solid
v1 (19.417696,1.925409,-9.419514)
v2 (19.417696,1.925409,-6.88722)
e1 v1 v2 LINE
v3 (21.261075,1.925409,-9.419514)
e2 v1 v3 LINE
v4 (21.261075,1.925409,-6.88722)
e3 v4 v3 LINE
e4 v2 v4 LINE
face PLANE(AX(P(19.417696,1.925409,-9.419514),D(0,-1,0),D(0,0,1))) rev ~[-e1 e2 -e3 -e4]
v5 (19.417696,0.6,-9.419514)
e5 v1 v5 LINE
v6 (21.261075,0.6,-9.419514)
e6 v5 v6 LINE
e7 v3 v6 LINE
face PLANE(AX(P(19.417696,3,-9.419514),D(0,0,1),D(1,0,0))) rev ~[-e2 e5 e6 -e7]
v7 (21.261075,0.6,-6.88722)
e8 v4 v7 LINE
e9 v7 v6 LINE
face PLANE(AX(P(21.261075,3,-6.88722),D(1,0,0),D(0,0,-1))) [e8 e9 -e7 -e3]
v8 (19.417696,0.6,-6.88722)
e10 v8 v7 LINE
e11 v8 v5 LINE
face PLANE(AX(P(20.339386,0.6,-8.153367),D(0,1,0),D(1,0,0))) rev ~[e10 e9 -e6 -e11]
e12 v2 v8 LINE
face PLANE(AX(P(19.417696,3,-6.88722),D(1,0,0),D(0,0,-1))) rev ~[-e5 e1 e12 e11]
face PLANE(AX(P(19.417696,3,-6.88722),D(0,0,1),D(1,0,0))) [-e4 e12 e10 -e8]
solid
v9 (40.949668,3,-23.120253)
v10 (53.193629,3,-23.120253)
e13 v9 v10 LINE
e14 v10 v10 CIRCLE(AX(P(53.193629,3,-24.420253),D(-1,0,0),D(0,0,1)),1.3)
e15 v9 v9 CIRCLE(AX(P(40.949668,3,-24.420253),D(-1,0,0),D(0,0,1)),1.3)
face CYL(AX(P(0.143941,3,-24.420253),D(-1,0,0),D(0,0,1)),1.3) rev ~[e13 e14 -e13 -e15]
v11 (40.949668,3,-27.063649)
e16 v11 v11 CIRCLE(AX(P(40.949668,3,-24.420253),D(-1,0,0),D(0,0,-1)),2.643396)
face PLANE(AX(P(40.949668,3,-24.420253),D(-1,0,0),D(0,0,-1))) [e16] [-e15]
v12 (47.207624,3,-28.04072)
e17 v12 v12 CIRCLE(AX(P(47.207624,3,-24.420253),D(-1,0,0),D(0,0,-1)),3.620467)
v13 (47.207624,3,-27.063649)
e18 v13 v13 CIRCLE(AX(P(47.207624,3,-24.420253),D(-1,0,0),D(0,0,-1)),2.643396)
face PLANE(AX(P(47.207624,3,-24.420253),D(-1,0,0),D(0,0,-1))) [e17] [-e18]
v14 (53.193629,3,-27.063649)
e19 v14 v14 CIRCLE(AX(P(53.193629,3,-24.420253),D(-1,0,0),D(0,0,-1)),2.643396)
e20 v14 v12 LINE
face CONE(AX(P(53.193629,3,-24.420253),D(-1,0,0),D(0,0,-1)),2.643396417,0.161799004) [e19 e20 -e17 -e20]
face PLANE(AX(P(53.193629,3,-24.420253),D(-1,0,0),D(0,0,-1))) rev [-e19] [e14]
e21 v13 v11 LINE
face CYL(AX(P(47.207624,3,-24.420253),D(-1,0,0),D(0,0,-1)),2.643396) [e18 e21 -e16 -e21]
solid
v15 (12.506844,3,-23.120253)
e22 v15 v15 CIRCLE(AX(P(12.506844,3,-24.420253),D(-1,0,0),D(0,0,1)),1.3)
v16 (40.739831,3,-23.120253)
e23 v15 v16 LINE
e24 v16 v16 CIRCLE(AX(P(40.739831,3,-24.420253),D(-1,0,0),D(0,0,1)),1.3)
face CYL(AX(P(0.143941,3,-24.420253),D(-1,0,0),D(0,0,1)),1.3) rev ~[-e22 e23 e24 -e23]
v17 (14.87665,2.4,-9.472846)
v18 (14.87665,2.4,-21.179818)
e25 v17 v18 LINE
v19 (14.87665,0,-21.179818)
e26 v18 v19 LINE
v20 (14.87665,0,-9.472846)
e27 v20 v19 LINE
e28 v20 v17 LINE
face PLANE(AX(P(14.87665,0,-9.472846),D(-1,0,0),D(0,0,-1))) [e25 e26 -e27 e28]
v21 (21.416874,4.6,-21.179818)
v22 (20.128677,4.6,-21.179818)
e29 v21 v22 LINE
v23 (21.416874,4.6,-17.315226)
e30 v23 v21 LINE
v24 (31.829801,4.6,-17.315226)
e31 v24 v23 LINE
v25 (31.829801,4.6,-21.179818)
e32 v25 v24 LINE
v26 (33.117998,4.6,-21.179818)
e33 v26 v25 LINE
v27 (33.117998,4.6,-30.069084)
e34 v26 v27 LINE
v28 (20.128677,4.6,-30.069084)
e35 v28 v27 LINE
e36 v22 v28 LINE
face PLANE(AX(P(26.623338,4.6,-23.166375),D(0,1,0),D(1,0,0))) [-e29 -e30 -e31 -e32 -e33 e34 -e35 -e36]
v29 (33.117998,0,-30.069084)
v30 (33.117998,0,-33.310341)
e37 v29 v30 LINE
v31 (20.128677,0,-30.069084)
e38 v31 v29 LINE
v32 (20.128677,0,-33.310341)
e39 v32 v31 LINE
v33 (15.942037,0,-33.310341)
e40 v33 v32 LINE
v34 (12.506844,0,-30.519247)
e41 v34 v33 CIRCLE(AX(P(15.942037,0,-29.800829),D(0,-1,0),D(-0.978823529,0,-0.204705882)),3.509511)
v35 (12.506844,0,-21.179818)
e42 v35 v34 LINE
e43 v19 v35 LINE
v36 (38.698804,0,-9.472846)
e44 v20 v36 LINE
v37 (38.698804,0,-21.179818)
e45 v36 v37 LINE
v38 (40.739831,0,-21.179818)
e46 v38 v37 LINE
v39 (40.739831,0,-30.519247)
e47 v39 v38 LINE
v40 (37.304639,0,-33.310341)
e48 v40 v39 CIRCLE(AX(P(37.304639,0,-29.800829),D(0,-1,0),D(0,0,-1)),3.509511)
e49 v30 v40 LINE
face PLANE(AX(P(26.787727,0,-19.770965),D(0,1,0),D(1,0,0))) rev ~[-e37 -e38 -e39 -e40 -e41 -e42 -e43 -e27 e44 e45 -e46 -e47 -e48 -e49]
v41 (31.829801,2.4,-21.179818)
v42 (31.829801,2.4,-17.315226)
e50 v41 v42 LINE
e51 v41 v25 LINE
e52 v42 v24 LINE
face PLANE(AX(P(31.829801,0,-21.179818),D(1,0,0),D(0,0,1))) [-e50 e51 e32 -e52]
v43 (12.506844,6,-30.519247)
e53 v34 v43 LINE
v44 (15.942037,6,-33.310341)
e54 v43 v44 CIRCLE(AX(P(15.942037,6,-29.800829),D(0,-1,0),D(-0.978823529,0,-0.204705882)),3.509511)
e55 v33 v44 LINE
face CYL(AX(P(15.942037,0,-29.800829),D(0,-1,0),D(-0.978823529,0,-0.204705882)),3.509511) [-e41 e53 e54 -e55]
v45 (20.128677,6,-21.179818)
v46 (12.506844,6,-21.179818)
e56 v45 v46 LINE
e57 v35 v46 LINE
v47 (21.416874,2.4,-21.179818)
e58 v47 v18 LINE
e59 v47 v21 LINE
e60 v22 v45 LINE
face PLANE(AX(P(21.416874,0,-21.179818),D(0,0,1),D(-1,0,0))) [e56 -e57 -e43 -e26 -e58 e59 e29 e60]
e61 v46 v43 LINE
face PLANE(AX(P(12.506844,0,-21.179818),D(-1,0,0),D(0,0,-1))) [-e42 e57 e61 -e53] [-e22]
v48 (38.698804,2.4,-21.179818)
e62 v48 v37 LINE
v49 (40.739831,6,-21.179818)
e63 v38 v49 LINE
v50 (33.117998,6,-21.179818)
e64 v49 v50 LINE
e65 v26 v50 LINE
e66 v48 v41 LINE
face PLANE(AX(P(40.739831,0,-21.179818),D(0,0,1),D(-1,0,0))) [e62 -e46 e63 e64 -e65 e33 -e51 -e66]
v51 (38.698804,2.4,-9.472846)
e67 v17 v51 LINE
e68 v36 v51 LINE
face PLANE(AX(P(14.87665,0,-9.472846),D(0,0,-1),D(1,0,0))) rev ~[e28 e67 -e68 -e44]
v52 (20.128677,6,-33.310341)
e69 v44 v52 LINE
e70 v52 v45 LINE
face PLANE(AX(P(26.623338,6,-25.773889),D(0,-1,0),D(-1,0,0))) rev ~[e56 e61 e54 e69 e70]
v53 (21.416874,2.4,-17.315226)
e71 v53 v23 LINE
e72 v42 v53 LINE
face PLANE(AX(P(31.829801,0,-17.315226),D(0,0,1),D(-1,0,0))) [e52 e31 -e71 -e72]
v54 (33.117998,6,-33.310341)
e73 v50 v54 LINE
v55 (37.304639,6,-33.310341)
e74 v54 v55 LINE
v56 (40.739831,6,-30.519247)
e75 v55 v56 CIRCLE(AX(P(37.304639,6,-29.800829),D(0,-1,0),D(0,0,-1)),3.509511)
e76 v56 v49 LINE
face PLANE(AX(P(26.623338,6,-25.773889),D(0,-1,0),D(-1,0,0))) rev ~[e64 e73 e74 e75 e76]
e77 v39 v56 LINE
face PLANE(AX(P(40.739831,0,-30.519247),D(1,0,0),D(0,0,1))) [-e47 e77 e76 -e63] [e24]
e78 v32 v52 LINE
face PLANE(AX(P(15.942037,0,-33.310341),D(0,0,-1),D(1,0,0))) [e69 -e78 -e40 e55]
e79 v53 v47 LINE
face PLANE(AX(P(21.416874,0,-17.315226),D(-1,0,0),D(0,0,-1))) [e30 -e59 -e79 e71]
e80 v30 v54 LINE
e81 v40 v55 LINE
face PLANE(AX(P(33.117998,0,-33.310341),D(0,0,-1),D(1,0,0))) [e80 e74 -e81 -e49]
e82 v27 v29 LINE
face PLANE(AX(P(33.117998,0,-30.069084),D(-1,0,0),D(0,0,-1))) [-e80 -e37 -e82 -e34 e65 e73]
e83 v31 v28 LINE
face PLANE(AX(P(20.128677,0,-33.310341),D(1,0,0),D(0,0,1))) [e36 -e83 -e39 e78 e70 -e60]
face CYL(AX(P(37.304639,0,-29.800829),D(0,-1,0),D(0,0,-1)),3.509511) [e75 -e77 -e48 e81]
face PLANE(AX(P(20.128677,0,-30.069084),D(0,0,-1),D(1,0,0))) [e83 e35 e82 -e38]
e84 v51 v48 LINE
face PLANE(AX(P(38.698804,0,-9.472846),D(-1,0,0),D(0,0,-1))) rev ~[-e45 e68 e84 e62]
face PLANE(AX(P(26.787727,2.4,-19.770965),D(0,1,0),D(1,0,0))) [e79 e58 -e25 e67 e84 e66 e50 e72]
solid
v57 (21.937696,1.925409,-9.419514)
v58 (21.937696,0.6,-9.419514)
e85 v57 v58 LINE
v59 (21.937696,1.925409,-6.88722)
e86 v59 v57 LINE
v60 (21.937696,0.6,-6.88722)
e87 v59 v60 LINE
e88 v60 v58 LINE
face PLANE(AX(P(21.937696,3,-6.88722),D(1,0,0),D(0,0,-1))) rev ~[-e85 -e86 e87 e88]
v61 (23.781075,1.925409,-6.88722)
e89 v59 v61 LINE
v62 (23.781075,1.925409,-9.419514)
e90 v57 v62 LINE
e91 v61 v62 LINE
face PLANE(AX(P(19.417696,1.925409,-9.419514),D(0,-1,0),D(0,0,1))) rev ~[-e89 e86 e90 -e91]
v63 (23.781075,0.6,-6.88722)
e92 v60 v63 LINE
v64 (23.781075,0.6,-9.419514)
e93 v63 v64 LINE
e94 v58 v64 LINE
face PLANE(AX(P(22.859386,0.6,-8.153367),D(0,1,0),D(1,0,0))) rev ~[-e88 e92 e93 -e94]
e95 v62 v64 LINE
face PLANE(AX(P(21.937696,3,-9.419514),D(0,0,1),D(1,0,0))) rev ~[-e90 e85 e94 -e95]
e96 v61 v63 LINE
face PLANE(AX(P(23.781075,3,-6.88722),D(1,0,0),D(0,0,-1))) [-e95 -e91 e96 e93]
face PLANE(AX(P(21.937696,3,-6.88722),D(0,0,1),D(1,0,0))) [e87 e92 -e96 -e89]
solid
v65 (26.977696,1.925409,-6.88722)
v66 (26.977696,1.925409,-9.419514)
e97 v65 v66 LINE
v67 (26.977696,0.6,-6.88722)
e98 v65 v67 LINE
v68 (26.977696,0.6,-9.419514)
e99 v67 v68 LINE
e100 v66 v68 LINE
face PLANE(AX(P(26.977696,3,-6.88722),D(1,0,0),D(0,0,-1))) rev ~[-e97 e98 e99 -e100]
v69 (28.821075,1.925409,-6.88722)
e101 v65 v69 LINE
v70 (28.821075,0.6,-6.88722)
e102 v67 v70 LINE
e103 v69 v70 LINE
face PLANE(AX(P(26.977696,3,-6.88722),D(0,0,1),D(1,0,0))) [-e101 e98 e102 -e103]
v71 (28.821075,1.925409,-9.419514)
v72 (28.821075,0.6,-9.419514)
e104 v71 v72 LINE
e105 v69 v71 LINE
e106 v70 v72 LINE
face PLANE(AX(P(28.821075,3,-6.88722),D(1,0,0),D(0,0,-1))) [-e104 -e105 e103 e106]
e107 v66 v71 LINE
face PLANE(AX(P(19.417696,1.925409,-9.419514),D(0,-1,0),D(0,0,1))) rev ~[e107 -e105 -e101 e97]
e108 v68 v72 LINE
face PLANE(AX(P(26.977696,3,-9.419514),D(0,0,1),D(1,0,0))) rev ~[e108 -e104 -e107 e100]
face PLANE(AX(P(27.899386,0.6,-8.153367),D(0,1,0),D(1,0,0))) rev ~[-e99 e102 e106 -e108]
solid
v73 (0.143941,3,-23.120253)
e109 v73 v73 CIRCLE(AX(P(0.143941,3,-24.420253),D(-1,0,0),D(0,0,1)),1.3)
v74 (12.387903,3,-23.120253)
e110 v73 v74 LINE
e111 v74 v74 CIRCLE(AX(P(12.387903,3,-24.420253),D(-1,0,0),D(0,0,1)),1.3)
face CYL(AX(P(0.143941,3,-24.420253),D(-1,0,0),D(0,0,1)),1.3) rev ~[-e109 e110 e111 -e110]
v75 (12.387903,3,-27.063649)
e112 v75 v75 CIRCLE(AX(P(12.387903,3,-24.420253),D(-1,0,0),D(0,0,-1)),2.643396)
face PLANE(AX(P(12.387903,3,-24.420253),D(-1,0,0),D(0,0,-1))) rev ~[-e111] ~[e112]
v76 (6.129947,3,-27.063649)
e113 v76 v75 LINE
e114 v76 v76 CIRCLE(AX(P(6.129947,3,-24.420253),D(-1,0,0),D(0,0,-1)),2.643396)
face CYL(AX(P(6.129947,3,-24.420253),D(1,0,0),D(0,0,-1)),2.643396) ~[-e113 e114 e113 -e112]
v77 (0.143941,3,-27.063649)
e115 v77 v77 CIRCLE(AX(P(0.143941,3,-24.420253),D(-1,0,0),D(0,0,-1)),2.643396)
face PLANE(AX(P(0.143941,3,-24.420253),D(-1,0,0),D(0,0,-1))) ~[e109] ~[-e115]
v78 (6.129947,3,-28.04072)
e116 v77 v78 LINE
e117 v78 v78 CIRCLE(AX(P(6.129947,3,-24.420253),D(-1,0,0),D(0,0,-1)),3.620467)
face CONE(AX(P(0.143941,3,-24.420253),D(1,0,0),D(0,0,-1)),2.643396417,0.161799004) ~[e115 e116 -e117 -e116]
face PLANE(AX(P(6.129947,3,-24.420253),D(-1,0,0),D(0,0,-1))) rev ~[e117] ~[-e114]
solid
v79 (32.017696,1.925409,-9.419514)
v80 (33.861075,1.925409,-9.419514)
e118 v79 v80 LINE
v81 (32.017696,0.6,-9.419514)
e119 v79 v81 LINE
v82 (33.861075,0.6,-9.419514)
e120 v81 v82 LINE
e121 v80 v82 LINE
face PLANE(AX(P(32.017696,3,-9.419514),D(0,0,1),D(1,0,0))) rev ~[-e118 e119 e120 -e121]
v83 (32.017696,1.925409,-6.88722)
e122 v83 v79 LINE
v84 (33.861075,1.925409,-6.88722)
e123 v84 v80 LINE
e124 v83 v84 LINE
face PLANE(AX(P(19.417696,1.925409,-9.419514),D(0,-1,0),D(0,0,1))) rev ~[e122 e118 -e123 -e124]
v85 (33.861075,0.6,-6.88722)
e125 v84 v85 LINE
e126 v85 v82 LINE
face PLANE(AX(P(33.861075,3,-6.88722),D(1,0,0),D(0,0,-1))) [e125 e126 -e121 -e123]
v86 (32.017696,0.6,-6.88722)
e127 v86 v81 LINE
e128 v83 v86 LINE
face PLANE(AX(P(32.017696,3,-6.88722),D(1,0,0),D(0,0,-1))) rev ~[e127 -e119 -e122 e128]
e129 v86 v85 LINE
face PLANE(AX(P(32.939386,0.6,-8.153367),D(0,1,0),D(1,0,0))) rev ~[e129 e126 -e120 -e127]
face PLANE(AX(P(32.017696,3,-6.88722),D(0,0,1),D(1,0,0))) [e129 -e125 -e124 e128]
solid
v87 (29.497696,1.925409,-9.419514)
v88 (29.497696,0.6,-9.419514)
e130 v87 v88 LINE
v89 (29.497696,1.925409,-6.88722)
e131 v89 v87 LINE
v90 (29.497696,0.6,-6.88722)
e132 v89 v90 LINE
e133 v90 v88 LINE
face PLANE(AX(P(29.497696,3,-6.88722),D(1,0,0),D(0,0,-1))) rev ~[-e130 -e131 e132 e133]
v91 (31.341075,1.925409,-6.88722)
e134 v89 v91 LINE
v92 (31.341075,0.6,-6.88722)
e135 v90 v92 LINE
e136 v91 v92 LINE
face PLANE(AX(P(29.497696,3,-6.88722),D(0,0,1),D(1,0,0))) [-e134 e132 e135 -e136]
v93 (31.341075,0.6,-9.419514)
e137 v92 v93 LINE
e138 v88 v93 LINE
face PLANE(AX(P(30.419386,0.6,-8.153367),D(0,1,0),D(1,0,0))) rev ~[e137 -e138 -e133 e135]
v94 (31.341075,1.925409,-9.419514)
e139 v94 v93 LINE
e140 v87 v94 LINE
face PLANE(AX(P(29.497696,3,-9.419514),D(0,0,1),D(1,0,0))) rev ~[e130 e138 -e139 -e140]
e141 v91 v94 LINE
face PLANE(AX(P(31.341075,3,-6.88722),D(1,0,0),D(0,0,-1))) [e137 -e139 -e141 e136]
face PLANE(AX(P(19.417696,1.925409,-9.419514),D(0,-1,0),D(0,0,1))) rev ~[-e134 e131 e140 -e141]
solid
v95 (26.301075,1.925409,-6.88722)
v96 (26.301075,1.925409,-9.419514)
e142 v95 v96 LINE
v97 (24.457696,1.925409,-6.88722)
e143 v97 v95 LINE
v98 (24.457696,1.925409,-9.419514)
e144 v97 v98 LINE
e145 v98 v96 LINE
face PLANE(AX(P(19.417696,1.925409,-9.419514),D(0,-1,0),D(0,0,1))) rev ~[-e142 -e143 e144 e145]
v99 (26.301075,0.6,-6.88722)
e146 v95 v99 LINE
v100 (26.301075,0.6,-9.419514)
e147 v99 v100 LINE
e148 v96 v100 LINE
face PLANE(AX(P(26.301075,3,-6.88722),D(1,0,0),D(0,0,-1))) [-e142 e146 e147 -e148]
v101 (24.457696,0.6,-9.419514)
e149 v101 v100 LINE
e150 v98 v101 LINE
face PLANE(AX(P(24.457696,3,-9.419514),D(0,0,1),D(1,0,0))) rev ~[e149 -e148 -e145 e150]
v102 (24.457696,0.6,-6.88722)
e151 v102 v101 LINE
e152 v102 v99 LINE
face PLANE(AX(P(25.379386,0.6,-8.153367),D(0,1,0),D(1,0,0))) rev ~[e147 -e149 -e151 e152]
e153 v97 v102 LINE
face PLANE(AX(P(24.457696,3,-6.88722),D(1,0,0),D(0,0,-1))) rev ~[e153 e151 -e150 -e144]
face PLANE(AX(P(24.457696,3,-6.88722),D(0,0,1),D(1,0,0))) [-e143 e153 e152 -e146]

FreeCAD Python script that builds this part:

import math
import FreeCAD as App
import Part
import Sketcher

V = App.Vector
Q = App.Units.Quantity

doc = App.newDocument("Part")
body = doc.addObject("PartDesign::Body", "Body")

sketch1 = doc.addObject("Sketcher::SketchObject", "Sketch")
body.addObject(sketch1)
sketch1.AttachmentSupport = (doc.XZ_Plane, [""])
sketch1.MapMode = "FlatFace"
sketch1.addGeometry([
    Part.LineSegment(V(20.1, -30.1, 0), V(20.1, -33.3, 0)),
    Part.LineSegment(V(20.1, -33.3, 0), V(15.9, -33.3, 0)),
    Part.ArcOfCircle(Part.Circle(V(15.9, -29.8, 0), V(0, 0, 1), 3.5), math.radians(-168), math.radians(-90)),
    Part.LineSegment(V(12.5, -30.5, 0), V(12.5, -21.2, 0)),
    Part.LineSegment(V(12.5, -21.2, 0), V(21.4, -21.2, 0)),
    Part.LineSegment(V(21.4, -21.2, 0), V(21.4, -17.3, 0)),
    Part.LineSegment(V(21.4, -17.3, 0), V(31.8, -17.3, 0)),
    Part.LineSegment(V(31.8, -17.3, 0), V(31.8, -21.2, 0)),
    Part.LineSegment(V(31.8, -21.2, 0), V(40.7, -21.2, 0)),
    Part.LineSegment(V(40.7, -21.2, 0), V(40.7, -30.5, 0)),
    Part.ArcOfCircle(Part.Circle(V(37.3, -29.8, 0), V(0, 0, 1), 3.5), math.radians(-90), math.radians(-12)),
    Part.LineSegment(V(37.3, -33.3, 0), V(33.1, -33.3, 0)),
    Part.LineSegment(V(33.1, -33.3, 0), V(33.1, -30.1, 0)),
    Part.LineSegment(V(33.1, -30.1, 0), V(20.1, -30.1, 0)),
], False)
sketch1.addConstraint([
    Sketcher.Constraint("Coincident", 0, 2, 1, 1),
    Sketcher.Constraint("Tangent", 1, 2, 2, 2),
    Sketcher.Constraint("Coincident", 2, 1, 3, 1),
    Sketcher.Constraint("Coincident", 3, 2, 4, 1),
    Sketcher.Constraint("Coincident", 4, 2, 5, 1),
    Sketcher.Constraint("Coincident", 5, 2, 6, 1),
    Sketcher.Constraint("Coincident", 6, 2, 7, 1),
    Sketcher.Constraint("Coincident", 7, 2, 8, 1),
    Sketcher.Constraint("Coincident", 8, 2, 9, 1),
    Sketcher.Constraint("Coincident", 9, 2, 10, 2),
    Sketcher.Constraint("Tangent", 10, 1, 11, 1),
    Sketcher.Constraint("Coincident", 11, 2, 12, 1),
    Sketcher.Constraint("Coincident", 12, 2, 13, 1),
    Sketcher.Constraint("Coincident", 13, 2, 0, 1),
    Sketcher.Constraint("Vertical", 0),
    Sketcher.Constraint("Horizontal", 1),
    Sketcher.Constraint("Vertical", 3),
    Sketcher.Constraint("Horizontal", 4),
    Sketcher.Constraint("Vertical", 5),
    Sketcher.Constraint("Horizontal", 6),
    Sketcher.Constraint("Vertical", 7),
    Sketcher.Constraint("Horizontal", 8),
    Sketcher.Constraint("Vertical", 9),
    Sketcher.Constraint("Horizontal", 11),
    Sketcher.Constraint("Vertical", 12),
    Sketcher.Constraint("Horizontal", 13),
    Sketcher.Constraint("Equal", 2, 10),
    Sketcher.Constraint("Horizontal", 2, 3, 10, 3),
    Sketcher.Constraint("Horizontal", 4, 2, 7, 2),
    Sketcher.Constraint("Horizontal", 2, 1, 9, 2),
    Sketcher.Constraint("Equal", 4, 8),
    Sketcher.Constraint("Equal", 1, 11),
    Sketcher.Constraint("Radius", 2, Q("3.509511 mm")),
    Sketcher.Constraint("DistanceX", -1, 1, 11, 2, Q("33.117998 mm")),
    Sketcher.Constraint("DistanceX", 1, 2, 1, 1, Q("4.186641 mm")),
    Sketcher.Constraint("DistanceX", 4, 1, 4, 2, Q("8.91003 mm")),
    Sketcher.Constraint("DistanceX", 13, 2, 13, 1, Q("12.989321 mm")),
    Sketcher.Constraint("DistanceY", 3, 1, 3, 2, Q("9.339429 mm")),
    Sketcher.Constraint("DistanceY", 5, 1, 5, 2, Q("3.864591 mm")),
    Sketcher.Constraint("DistanceX", -1, 1, 6, 2, Q("31.829801 mm")),
    Sketcher.Constraint("DistanceY", 0, 2, 0, 1, Q("3.241257 mm")),
    Sketcher.Constraint("DistanceY", 2, 3, -1, 1, Q("29.800829 mm")),
])
pad1 = doc.addObject("PartDesign::Pad", "Pad")
body.addObject(pad1)
pad1.Profile = sketch1
pad1.Length = 6
pad1.Reversed = True

sketch2 = doc.addObject("Sketcher::SketchObject", "Sketch001")
body.addObject(sketch2)
sketch2.AttachmentSupport = (doc.XZ_Plane, [""])
sketch2.MapMode = "FlatFace"
sketch2.addGeometry([
    Part.LineSegment(V(15, -30, 0), V(15, -9, 0)),
    Part.LineSegment(V(15, -9, 0), V(39, -9, 0)),
    Part.LineSegment(V(39, -9, 0), V(39, -30, 0)),
    Part.LineSegment(V(39, -30, 0), V(15, -30, 0)),
], False)
sketch2.addConstraint([
    Sketcher.Constraint("Coincident", 0, 2, 1, 1),
    Sketcher.Constraint("Coincident", 1, 2, 2, 1),
    Sketcher.Constraint("Coincident", 2, 2, 3, 1),
    Sketcher.Constraint("Coincident", 3, 2, 0, 1),
    Sketcher.Constraint("Vertical", 0),
    Sketcher.Constraint("Horizontal", 1),
    Sketcher.Constraint("Vertical", 2),
    Sketcher.Constraint("Horizontal", 3),
    Sketcher.Constraint("DistanceX", 1, 1, 1, 2, Q("23.822154 mm")),
    Sketcher.Constraint("DistanceY", 0, 1, 0, 2, Q("20.596238 mm")),
    Sketcher.Constraint("DistanceX", -1, 1, 0, 2, Q("14.87665 mm")),
    Sketcher.Constraint("DistanceY", 0, 2, -1, 1, Q("9.472846 mm")),
])
pad2 = doc.addObject("PartDesign::Pad", "Pad001")
body.addObject(pad2)
pad2.Profile = sketch2
pad2.Length = 2.4
pad2.Reversed = True

sketch3 = doc.addObject("Sketcher::SketchObject", "Sketch002")
body.addObject(sketch3)
sketch3.AttachmentSupport = (doc.XZ_Plane, [""])
sketch3.MapMode = "FlatFace"
sketch3.AttachmentOffset = App.Placement(V(0, 0, -6), App.Rotation())
sketch3.addGeometry([
    Part.LineSegment(V(20, -30, 0), V(20, -16, 0)),
    Part.LineSegment(V(20, -16, 0), V(33, -16, 0)),
    Part.LineSegment(V(33, -16, 0), V(33, -30, 0)),
    Part.LineSegment(V(33, -30, 0), V(20, -30, 0)),
], False)
sketch3.addConstraint([
    Sketcher.Constraint("Coincident", 0, 2, 1, 1),
    Sketcher.Constraint("Coincident", 1, 2, 2, 1),
    Sketcher.Constraint("Coincident", 2, 2, 3, 1),
    Sketcher.Constraint("Coincident", 3, 2, 0, 1),
    Sketcher.Constraint("Vertical", 0),
    Sketcher.Constraint("Horizontal", 1),
    Sketcher.Constraint("Vertical", 2),
    Sketcher.Constraint("Horizontal", 3),
    Sketcher.Constraint("DistanceX", -1, 1, 1, 2, Q("33.117998 mm")),
    Sketcher.Constraint("DistanceX", 1, 1, 1, 2, Q("12.989321 mm")),
    Sketcher.Constraint("DistanceY", 0, 1, 0, 2, Q("13.805418 mm")),
    Sketcher.Constraint("DistanceY", 0, 2, -1, 1, Q("16.263666 mm")),
])
pocket1 = doc.addObject("PartDesign::Pocket", "Pocket")
body.addObject(pocket1)
pocket1.Profile = sketch3
pocket1.Length = 1.4
pocket1.Reversed = True
body2 = doc.addObject("PartDesign::Body", "Body001")
body2.AllowCompound = True

sketch4 = doc.addObject("Sketcher::SketchObject", "Sketch003")
body2.addObject(sketch4)
sketch4.AttachmentSupport = (doc.getObject("XZ_Plane001"), [""])
sketch4.MapMode = "FlatFace"
sketch4.AttachmentOffset = App.Placement(V(0, 0, -3), App.Rotation())
sketch4.addGeometry([
    Part.LineSegment(V(12.4, -27.1, 0), V(6.1, -27.1, 0)),
    Part.LineSegment(V(6.1, -27.1, 0), V(6.1, -28, 0)),
    Part.LineSegment(V(6.1, -28, 0), V(0.1, -27.1, 0)),
    Part.LineSegment(V(0.1, -27.1, 0), V(0.1, -24.4, 0)),
    Part.LineSegment(V(0.1, -24.4, 0), V(12.4, -24.4, 0)),
    Part.LineSegment(V(12.4, -24.4, 0), V(12.4, -27.1, 0)),
    Part.LineSegment(V(47.2, -28, 0), V(47.2, -27.1, 0)),
    Part.LineSegment(V(47.2, -27.1, 0), V(40.9, -27.1, 0)),
    Part.LineSegment(V(40.9, -27.1, 0), V(40.9, -24.4, 0)),
    Part.LineSegment(V(40.9, -24.4, 0), V(53.2, -24.4, 0)),
    Part.LineSegment(V(53.2, -24.4, 0), V(53.2, -27.1, 0)),
    Part.LineSegment(V(53.2, -27.1, 0), V(47.2, -28, 0)),
], False)
sketch4.addGeometry(Part.LineSegment(V(53.2, -24.4, 0), V(0.1, -24.4, 0)), True)
sketch4.addConstraint([
    Sketcher.Constraint("Coincident", 0, 2, 1, 1),
    Sketcher.Constraint("Coincident", 1, 2, 2, 1),
    Sketcher.Constraint("Coincident", 2, 2, 3, 1),
    Sketcher.Constraint("Coincident", 3, 2, 4, 1),
    Sketcher.Constraint("Coincident", 4, 2, 5, 1),
    Sketcher.Constraint("Coincident", 5, 2, 0, 1),
    Sketcher.Constraint("Coincident", 6, 2, 7, 1),
    Sketcher.Constraint("Coincident", 7, 2, 8, 1),
    Sketcher.Constraint("Coincident", 8, 2, 9, 1),
    Sketcher.Constraint("Coincident", 9, 2, 10, 1),
    Sketcher.Constraint("Coincident", 10, 2, 11, 1),
    Sketcher.Constraint("Coincident", 11, 2, 6, 1),
    Sketcher.Constraint("Horizontal", 0),
    Sketcher.Constraint("Vertical", 1),
    Sketcher.Constraint("Vertical", 3),
    Sketcher.Constraint("Horizontal", 4),
    Sketcher.Constraint("Vertical", 5),
    Sketcher.Constraint("Vertical", 6),
    Sketcher.Constraint("Horizontal", 7),
    Sketcher.Constraint("Vertical", 8),
    Sketcher.Constraint("Horizontal", 9),
    Sketcher.Constraint("Vertical", 10),
    Sketcher.Constraint("Horizontal", 12),
    Sketcher.Constraint("Coincident", 12, 1, 9, 2),
    Sketcher.Constraint("Coincident", 12, 2, 3, 2),
    Sketcher.Constraint("Horizontal", 0, 2, 2, 2),
    Sketcher.Constraint("Horizontal", 5, 2, 6, 2),
    Sketcher.Constraint("Horizontal", 7, 2, 10, 2),
    Sketcher.Constraint("Horizontal", 1, 2, 11, 2),
    Sketcher.Constraint("Equal", 0, 7),
    Sketcher.Constraint("Equal", 4, 9),
    Sketcher.Constraint("DistanceX", 4, 1, 4, 2, Q("12.243961 mm")),
    Sketcher.Constraint("DistanceY", 1, 2, 1, 1, Q("0.977071 mm")),
    Sketcher.Constraint("DistanceX", 0, 2, 0, 1, Q("6.257956 mm")),
    Sketcher.Constraint("DistanceX", 12, 2, 12, 1, Q("53.049688 mm")),
    Sketcher.Constraint("DistanceY", 3, 1, 3, 2, Q("2.643396 mm")),
    Sketcher.Constraint("DistanceY", 0, 2, -1, 1, Q("27.063649 mm")),
    Sketcher.Constraint("DistanceX", -1, 1, 2, 2, Q("0.143941 mm")),
])
revolution = doc.addObject("PartDesign::Revolution", "Revolution")
body2.addObject(revolution)
revolution.Profile = sketch4
revolution.ReferenceAxis = (sketch4, ["Axis0"])
revolution.Angle = 360
body3 = doc.addObject("PartDesign::Body", "Body002")

sketch5 = doc.addObject("Sketcher::SketchObject", "Sketch004")
body3.addObject(sketch5)
sketch5.AttachmentSupport = (doc.getObject("YZ_Plane002"), [""])
sketch5.MapMode = "FlatFace"
sketch5.AttachmentOffset = App.Placement(V(0, 0, 0.143941), App.Rotation())
sketch5.addGeometry(Part.Circle(V(3, -24.4, 0), V(0, 0, 1), 1.3), False)
sketch5.addConstraint([
    Sketcher.Constraint("Diameter", 0, Q("2.6 mm")),
    Sketcher.Constraint("DistanceX", -1, 1, 0, 3, Q("3 mm")),
    Sketcher.Constraint("DistanceY", 0, 3, -1, 1, Q("24.420253 mm")),
])
pad3 = doc.addObject("PartDesign::Pad", "Pad002")
body3.addObject(pad3)
pad3.Profile = sketch5
pad3.Length = 63.989513
doc.recompute()

body4 = doc.addObject("PartDesign::Body", "Body003")
body4.BaseFeature = body3
boolean = doc.addObject("PartDesign::Boolean", "Boolean")
body.addObject(boolean)
boolean.Type = "Cut"
boolean.addObjects([body4])
doc.recompute()
body2.AllowCompound = True
doc.recompute()

boolean2 = doc.addObject("PartDesign::Boolean", "Boolean001")
body2.addObject(boolean2)
boolean2.Type = "Cut"
boolean2.addObjects([body3])
body5 = doc.addObject("PartDesign::Body", "Body004")

sketch6 = doc.addObject("Sketcher::SketchObject", "Sketch005")
body5.addObject(sketch6)
sketch6.AttachmentSupport = (doc.getObject("XZ_Plane004"), [""])
sketch6.MapMode = "FlatFace"
sketch6.AttachmentOffset = App.Placement(V(0, 0, -3), App.Rotation())
sketch6.addGeometry([
    Part.LineSegment(V(21.9, -9.4, 0), V(21.9, -6.9, 0)),
    Part.LineSegment(V(21.9, -6.9, 0), V(23.8, -6.9, 0)),
    Part.LineSegment(V(23.8, -6.9, 0), V(23.8, -9.4, 0)),
    Part.LineSegment(V(23.8, -9.4, 0), V(21.9, -9.4, 0)),
], False)
sketch6.addConstraint([
    Sketcher.Constraint("Coincident", 0, 2, 1, 1),
    Sketcher.Constraint("Coincident", 1, 2, 2, 1),
    Sketcher.Constraint("Coincident", 2, 2, 3, 1),
    Sketcher.Constraint("Coincident", 3, 2, 0, 1),
    Sketcher.Constraint("Vertical", 0),
    Sketcher.Constraint("Horizontal", 1),
    Sketcher.Constraint("Vertical", 2),
    Sketcher.Constraint("Horizontal", 3),
    Sketcher.Constraint("DistanceX", 1, 1, 1, 2, Q("1.843379 mm")),
    Sketcher.Constraint("DistanceY", 0, 1, 0, 2, Q("2.532294 mm")),
    Sketcher.Constraint("DistanceY", 0, 2, -1, 1, Q("6.88722 mm")),
    Sketcher.Constraint("DistanceX", -1, 1, 0, 2, Q("21.937696 mm")),
])
pad4 = doc.addObject("PartDesign::Pad", "Pad003")
body5.addObject(pad4)
pad4.Profile = sketch6
pad4.Length = 2.4
body6 = doc.addObject("PartDesign::Body", "Body005")

sketch7 = doc.addObject("Sketcher::SketchObject", "Sketch006")
body6.addObject(sketch7)
sketch7.AttachmentSupport = (doc.getObject("XZ_Plane005"), [""])
sketch7.MapMode = "FlatFace"
sketch7.AttachmentOffset = App.Placement(V(0, 0, -3), App.Rotation())
sketch7.addGeometry([
    Part.LineSegment(V(19.4, -9.4, 0), V(19.4, -6.9, 0)),
    Part.LineSegment(V(19.4, -6.9, 0), V(21.3, -6.9, 0)),
    Part.LineSegment(V(21.3, -6.9, 0), V(21.3, -9.4, 0)),
    Part.LineSegment(V(21.3, -9.4, 0), V(19.4, -9.4, 0)),
], False)
sketch7.addConstraint([
    Sketcher.Constraint("Coincident", 0, 2, 1, 1),
    Sketcher.Constraint("Coincident", 1, 2, 2, 1),
    Sketcher.Constraint("Coincident", 2, 2, 3, 1),
    Sketcher.Constraint("Coincident", 3, 2, 0, 1),
    Sketcher.Constraint("Vertical", 0),
    Sketcher.Constraint("Horizontal", 1),
    Sketcher.Constraint("Vertical", 2),
    Sketcher.Constraint("Horizontal", 3),
    Sketcher.Constraint("DistanceX", 1, 1, 1, 2, Q("1.843379 mm")),
    Sketcher.Constraint("DistanceY", 0, 1, 0, 2, Q("2.532294 mm")),
    Sketcher.Constraint("DistanceY", 0, 2, -1, 1, Q("6.88722 mm")),
    Sketcher.Constraint("DistanceX", -1, 1, 0, 2, Q("19.417696 mm")),
])
pad5 = doc.addObject("PartDesign::Pad", "Pad004")
body6.addObject(pad5)
pad5.Profile = sketch7
pad5.Length = 2.4
body7 = doc.addObject("PartDesign::Body", "Body006")

sketch8 = doc.addObject("Sketcher::SketchObject", "Sketch007")
body7.addObject(sketch8)
sketch8.AttachmentSupport = (doc.getObject("XZ_Plane006"), [""])
sketch8.MapMode = "FlatFace"
sketch8.AttachmentOffset = App.Placement(V(0, 0, -3), App.Rotation())
sketch8.addGeometry([
    Part.LineSegment(V(24.5, -9.4, 0), V(24.5, -6.9, 0)),
    Part.LineSegment(V(24.5, -6.9, 0), V(26.3, -6.9, 0)),
    Part.LineSegment(V(26.3, -6.9, 0), V(26.3, -9.4, 0)),
    Part.LineSegment(V(26.3, -9.4, 0), V(24.5, -9.4, 0)),
], False)
sketch8.addConstraint([
    Sketcher.Constraint("Coincident", 0, 2, 1, 1),
    Sketcher.Constraint("Coincident", 1, 2, 2, 1),
    Sketcher.Constraint("Coincident", 2, 2, 3, 1),
    Sketcher.Constraint("Coincident", 3, 2, 0, 1),
    Sketcher.Constraint("Vertical", 0),
    Sketcher.Constraint("Horizontal", 1),
    Sketcher.Constraint("Vertical", 2),
    Sketcher.Constraint("Horizontal", 3),
    Sketcher.Constraint("DistanceX", 1, 1, 1, 2, Q("1.843379 mm")),
    Sketcher.Constraint("DistanceY", 0, 1, 0, 2, Q("2.532294 mm")),
    Sketcher.Constraint("DistanceY", 0, 2, -1, 1, Q("6.88722 mm")),
    Sketcher.Constraint("DistanceX", -1, 1, 0, 2, Q("24.457696 mm")),
])
pad6 = doc.addObject("PartDesign::Pad", "Pad005")
body7.addObject(pad6)
pad6.Profile = sketch8
pad6.Length = 2.4
body8 = doc.addObject("PartDesign::Body", "Body007")

sketch9 = doc.addObject("Sketcher::SketchObject", "Sketch008")
body8.addObject(sketch9)
sketch9.AttachmentSupport = (doc.getObject("XZ_Plane007"), [""])
sketch9.MapMode = "FlatFace"
sketch9.AttachmentOffset = App.Placement(V(0, 0, -3), App.Rotation())
sketch9.addGeometry([
    Part.LineSegment(V(27, -9.4, 0), V(27, -6.9, 0)),
    Part.LineSegment(V(27, -6.9, 0), V(28.8, -6.9, 0)),
    Part.LineSegment(V(28.8, -6.9, 0), V(28.8, -9.4, 0)),
    Part.LineSegment(V(28.8, -9.4, 0), V(27, -9.4, 0)),
], False)
sketch9.addConstraint([
    Sketcher.Constraint("Coincident", 0, 2, 1, 1),
    Sketcher.Constraint("Coincident", 1, 2, 2, 1),
    Sketcher.Constraint("Coincident", 2, 2, 3, 1),
    Sketcher.Constraint("Coincident", 3, 2, 0, 1),
    Sketcher.Constraint("Vertical", 0),
    Sketcher.Constraint("Horizontal", 1),
    Sketcher.Constraint("Vertical", 2),
    Sketcher.Constraint("Horizontal", 3),
    Sketcher.Constraint("DistanceX", 1, 1, 1, 2, Q("1.843379 mm")),
    Sketcher.Constraint("DistanceY", 0, 1, 0, 2, Q("2.532294 mm")),
    Sketcher.Constraint("DistanceY", 0, 2, -1, 1, Q("6.88722 mm")),
    Sketcher.Constraint("DistanceX", -1, 1, 0, 2, Q("26.977696 mm")),
])
pad7 = doc.addObject("PartDesign::Pad", "Pad006")
body8.addObject(pad7)
pad7.Profile = sketch9
pad7.Length = 2.4
body9 = doc.addObject("PartDesign::Body", "Body008")

sketch10 = doc.addObject("Sketcher::SketchObject", "Sketch009")
body9.addObject(sketch10)
sketch10.AttachmentSupport = (doc.getObject("XZ_Plane008"), [""])
sketch10.MapMode = "FlatFace"
sketch10.AttachmentOffset = App.Placement(V(0, 0, -3), App.Rotation())
sketch10.addGeometry([
    Part.LineSegment(V(29.5, -9.4, 0), V(29.5, -6.9, 0)),
    Part.LineSegment(V(29.5, -6.9, 0), V(31.3, -6.9, 0)),
    Part.LineSegment(V(31.3, -6.9, 0), V(31.3, -9.4, 0)),
    Part.LineSegment(V(31.3, -9.4, 0), V(29.5, -9.4, 0)),
], False)
sketch10.addConstraint([
    Sketcher.Constraint("Coincident", 0, 2, 1, 1),
    Sketcher.Constraint("Coincident", 1, 2, 2, 1),
    Sketcher.Constraint("Coincident", 2, 2, 3, 1),
    Sketcher.Constraint("Coincident", 3, 2, 0, 1),
    Sketcher.Constraint("Vertical", 0),
    Sketcher.Constraint("Horizontal", 1),
    Sketcher.Constraint("Vertical", 2),
    Sketcher.Constraint("Horizontal", 3),
    Sketcher.Constraint("DistanceX", 1, 1, 1, 2, Q("1.843379 mm")),
    Sketcher.Constraint("DistanceY", 0, 1, 0, 2, Q("2.532294 mm")),
    Sketcher.Constraint("DistanceY", 0, 2, -1, 1, Q("6.88722 mm")),
    Sketcher.Constraint("DistanceX", -1, 1, 0, 2, Q("29.497696 mm")),
])
pad8 = doc.addObject("PartDesign::Pad", "Pad007")
body9.addObject(pad8)
pad8.Profile = sketch10
pad8.Length = 2.4
body10 = doc.addObject("PartDesign::Body", "Body009")

sketch11 = doc.addObject("Sketcher::SketchObject", "Sketch010")
body10.addObject(sketch11)
sketch11.AttachmentSupport = (doc.getObject("XZ_Plane009"), [""])
sketch11.MapMode = "FlatFace"
sketch11.AttachmentOffset = App.Placement(V(0, 0, -3), App.Rotation())
sketch11.addGeometry([
    Part.LineSegment(V(32, -9.4, 0), V(32, -6.9, 0)),
    Part.LineSegment(V(32, -6.9, 0), V(33.9, -6.9, 0)),
    Part.LineSegment(V(33.9, -6.9, 0), V(33.9, -9.4, 0)),
    Part.LineSegment(V(33.9, -9.4, 0), V(32, -9.4, 0)),
], False)
sketch11.addConstraint([
    Sketcher.Constraint("Coincident", 0, 2, 1, 1),
    Sketcher.Constraint("Coincident", 1, 2, 2, 1),
    Sketcher.Constraint("Coincident", 2, 2, 3, 1),
    Sketcher.Constraint("Coincident", 3, 2, 0, 1),
    Sketcher.Constraint("Vertical", 0),
    Sketcher.Constraint("Horizontal", 1),
    Sketcher.Constraint("Vertical", 2),
    Sketcher.Constraint("Horizontal", 3),
    Sketcher.Constraint("DistanceX", 1, 1, 1, 2, Q("1.843379 mm")),
    Sketcher.Constraint("DistanceY", 0, 1, 0, 2, Q("2.532294 mm")),
    Sketcher.Constraint("DistanceY", 0, 2, -1, 1, Q("6.88722 mm")),
    Sketcher.Constraint("DistanceX", -1, 1, 0, 2, Q("32.017696 mm")),
])
pad9 = doc.addObject("PartDesign::Pad", "Pad008")
body10.addObject(pad9)
pad9.Profile = sketch11
pad9.Length = 2.4
body11 = doc.addObject("PartDesign::Body", "Body010")

sketch12 = doc.addObject("Sketcher::SketchObject", "Sketch011")
body11.addObject(sketch12)
sketch12.AttachmentSupport = (doc.getObject("YZ_Plane010"), [""])
sketch12.MapMode = "FlatFace"
sketch12.AttachmentOffset = App.Placement(V(0, 0, 19.417696), App.Rotation())
sketch12.addGeometry([
    Part.LineSegment(V(3, -9.4, 0), V(1.9, -9.4, 0)),
    Part.LineSegment(V(1.9, -9.4, 0), V(1.9, -6.9, 0)),
    Part.LineSegment(V(1.9, -6.9, 0), V(3, -6.9, 0)),
    Part.LineSegment(V(3, -6.9, 0), V(3, -9.4, 0)),
], False)
sketch12.addConstraint([
    Sketcher.Constraint("Coincident", 0, 2, 1, 1),
    Sketcher.Constraint("Coincident", 1, 2, 2, 1),
    Sketcher.Constraint("Coincident", 2, 2, 3, 1),
    Sketcher.Constraint("Coincident", 3, 2, 0, 1),
    Sketcher.Constraint("Horizontal", 0),
    Sketcher.Constraint("Vertical", 1),
    Sketcher.Constraint("Horizontal", 2),
    Sketcher.Constraint("Vertical", 3),
    Sketcher.Constraint("DistanceX", -1, 1, 2, 2, Q("3 mm")),
    Sketcher.Constraint("DistanceX", 0, 2, 0, 1, Q("1.074591 mm")),
    Sketcher.Constraint("DistanceY", 1, 1, 1, 2, Q("2.532294 mm")),
    Sketcher.Constraint("DistanceY", 1, 2, -1, 1, Q("6.88722 mm")),
])
pad10 = doc.addObject("PartDesign::Pad", "Pad009")
body11.addObject(pad10)
pad10.Profile = sketch12
pad10.Length = 19.4
doc.recompute()

body12 = doc.addObject("PartDesign::Body", "Body011")
body12.BaseFeature = body11
boolean3 = doc.addObject("PartDesign::Boolean", "Boolean002")
body5.addObject(boolean3)
boolean3.Type = "Cut"
boolean3.addObjects([body12])
doc.recompute()

body13 = doc.addObject("PartDesign::Body", "Body012")
body13.BaseFeature = body11
boolean4 = doc.addObject("PartDesign::Boolean", "Boolean003")
body6.addObject(boolean4)
boolean4.Type = "Cut"
boolean4.addObjects([body13])
doc.recompute()

body14 = doc.addObject("PartDesign::Body", "Body013")
body14.BaseFeature = body11
boolean5 = doc.addObject("PartDesign::Boolean", "Boolean004")
body7.addObject(boolean5)
boolean5.Type = "Cut"
boolean5.addObjects([body14])
doc.recompute()

body15 = doc.addObject("PartDesign::Body", "Body014")
body15.BaseFeature = body11
boolean6 = doc.addObject("PartDesign::Boolean", "Boolean005")
body8.addObject(boolean6)
boolean6.Type = "Cut"
boolean6.addObjects([body15])
doc.recompute()

body16 = doc.addObject("PartDesign::Body", "Body015")
body16.BaseFeature = body11
boolean7 = doc.addObject("PartDesign::Boolean", "Boolean006")
body9.addObject(boolean7)
boolean7.Type = "Cut"
boolean7.addObjects([body16])
doc.recompute()

boolean8 = doc.addObject("PartDesign::Boolean", "Boolean007")
body10.addObject(boolean8)
boolean8.Type = "Cut"
boolean8.addObjects([body11])

doc.recompute()
